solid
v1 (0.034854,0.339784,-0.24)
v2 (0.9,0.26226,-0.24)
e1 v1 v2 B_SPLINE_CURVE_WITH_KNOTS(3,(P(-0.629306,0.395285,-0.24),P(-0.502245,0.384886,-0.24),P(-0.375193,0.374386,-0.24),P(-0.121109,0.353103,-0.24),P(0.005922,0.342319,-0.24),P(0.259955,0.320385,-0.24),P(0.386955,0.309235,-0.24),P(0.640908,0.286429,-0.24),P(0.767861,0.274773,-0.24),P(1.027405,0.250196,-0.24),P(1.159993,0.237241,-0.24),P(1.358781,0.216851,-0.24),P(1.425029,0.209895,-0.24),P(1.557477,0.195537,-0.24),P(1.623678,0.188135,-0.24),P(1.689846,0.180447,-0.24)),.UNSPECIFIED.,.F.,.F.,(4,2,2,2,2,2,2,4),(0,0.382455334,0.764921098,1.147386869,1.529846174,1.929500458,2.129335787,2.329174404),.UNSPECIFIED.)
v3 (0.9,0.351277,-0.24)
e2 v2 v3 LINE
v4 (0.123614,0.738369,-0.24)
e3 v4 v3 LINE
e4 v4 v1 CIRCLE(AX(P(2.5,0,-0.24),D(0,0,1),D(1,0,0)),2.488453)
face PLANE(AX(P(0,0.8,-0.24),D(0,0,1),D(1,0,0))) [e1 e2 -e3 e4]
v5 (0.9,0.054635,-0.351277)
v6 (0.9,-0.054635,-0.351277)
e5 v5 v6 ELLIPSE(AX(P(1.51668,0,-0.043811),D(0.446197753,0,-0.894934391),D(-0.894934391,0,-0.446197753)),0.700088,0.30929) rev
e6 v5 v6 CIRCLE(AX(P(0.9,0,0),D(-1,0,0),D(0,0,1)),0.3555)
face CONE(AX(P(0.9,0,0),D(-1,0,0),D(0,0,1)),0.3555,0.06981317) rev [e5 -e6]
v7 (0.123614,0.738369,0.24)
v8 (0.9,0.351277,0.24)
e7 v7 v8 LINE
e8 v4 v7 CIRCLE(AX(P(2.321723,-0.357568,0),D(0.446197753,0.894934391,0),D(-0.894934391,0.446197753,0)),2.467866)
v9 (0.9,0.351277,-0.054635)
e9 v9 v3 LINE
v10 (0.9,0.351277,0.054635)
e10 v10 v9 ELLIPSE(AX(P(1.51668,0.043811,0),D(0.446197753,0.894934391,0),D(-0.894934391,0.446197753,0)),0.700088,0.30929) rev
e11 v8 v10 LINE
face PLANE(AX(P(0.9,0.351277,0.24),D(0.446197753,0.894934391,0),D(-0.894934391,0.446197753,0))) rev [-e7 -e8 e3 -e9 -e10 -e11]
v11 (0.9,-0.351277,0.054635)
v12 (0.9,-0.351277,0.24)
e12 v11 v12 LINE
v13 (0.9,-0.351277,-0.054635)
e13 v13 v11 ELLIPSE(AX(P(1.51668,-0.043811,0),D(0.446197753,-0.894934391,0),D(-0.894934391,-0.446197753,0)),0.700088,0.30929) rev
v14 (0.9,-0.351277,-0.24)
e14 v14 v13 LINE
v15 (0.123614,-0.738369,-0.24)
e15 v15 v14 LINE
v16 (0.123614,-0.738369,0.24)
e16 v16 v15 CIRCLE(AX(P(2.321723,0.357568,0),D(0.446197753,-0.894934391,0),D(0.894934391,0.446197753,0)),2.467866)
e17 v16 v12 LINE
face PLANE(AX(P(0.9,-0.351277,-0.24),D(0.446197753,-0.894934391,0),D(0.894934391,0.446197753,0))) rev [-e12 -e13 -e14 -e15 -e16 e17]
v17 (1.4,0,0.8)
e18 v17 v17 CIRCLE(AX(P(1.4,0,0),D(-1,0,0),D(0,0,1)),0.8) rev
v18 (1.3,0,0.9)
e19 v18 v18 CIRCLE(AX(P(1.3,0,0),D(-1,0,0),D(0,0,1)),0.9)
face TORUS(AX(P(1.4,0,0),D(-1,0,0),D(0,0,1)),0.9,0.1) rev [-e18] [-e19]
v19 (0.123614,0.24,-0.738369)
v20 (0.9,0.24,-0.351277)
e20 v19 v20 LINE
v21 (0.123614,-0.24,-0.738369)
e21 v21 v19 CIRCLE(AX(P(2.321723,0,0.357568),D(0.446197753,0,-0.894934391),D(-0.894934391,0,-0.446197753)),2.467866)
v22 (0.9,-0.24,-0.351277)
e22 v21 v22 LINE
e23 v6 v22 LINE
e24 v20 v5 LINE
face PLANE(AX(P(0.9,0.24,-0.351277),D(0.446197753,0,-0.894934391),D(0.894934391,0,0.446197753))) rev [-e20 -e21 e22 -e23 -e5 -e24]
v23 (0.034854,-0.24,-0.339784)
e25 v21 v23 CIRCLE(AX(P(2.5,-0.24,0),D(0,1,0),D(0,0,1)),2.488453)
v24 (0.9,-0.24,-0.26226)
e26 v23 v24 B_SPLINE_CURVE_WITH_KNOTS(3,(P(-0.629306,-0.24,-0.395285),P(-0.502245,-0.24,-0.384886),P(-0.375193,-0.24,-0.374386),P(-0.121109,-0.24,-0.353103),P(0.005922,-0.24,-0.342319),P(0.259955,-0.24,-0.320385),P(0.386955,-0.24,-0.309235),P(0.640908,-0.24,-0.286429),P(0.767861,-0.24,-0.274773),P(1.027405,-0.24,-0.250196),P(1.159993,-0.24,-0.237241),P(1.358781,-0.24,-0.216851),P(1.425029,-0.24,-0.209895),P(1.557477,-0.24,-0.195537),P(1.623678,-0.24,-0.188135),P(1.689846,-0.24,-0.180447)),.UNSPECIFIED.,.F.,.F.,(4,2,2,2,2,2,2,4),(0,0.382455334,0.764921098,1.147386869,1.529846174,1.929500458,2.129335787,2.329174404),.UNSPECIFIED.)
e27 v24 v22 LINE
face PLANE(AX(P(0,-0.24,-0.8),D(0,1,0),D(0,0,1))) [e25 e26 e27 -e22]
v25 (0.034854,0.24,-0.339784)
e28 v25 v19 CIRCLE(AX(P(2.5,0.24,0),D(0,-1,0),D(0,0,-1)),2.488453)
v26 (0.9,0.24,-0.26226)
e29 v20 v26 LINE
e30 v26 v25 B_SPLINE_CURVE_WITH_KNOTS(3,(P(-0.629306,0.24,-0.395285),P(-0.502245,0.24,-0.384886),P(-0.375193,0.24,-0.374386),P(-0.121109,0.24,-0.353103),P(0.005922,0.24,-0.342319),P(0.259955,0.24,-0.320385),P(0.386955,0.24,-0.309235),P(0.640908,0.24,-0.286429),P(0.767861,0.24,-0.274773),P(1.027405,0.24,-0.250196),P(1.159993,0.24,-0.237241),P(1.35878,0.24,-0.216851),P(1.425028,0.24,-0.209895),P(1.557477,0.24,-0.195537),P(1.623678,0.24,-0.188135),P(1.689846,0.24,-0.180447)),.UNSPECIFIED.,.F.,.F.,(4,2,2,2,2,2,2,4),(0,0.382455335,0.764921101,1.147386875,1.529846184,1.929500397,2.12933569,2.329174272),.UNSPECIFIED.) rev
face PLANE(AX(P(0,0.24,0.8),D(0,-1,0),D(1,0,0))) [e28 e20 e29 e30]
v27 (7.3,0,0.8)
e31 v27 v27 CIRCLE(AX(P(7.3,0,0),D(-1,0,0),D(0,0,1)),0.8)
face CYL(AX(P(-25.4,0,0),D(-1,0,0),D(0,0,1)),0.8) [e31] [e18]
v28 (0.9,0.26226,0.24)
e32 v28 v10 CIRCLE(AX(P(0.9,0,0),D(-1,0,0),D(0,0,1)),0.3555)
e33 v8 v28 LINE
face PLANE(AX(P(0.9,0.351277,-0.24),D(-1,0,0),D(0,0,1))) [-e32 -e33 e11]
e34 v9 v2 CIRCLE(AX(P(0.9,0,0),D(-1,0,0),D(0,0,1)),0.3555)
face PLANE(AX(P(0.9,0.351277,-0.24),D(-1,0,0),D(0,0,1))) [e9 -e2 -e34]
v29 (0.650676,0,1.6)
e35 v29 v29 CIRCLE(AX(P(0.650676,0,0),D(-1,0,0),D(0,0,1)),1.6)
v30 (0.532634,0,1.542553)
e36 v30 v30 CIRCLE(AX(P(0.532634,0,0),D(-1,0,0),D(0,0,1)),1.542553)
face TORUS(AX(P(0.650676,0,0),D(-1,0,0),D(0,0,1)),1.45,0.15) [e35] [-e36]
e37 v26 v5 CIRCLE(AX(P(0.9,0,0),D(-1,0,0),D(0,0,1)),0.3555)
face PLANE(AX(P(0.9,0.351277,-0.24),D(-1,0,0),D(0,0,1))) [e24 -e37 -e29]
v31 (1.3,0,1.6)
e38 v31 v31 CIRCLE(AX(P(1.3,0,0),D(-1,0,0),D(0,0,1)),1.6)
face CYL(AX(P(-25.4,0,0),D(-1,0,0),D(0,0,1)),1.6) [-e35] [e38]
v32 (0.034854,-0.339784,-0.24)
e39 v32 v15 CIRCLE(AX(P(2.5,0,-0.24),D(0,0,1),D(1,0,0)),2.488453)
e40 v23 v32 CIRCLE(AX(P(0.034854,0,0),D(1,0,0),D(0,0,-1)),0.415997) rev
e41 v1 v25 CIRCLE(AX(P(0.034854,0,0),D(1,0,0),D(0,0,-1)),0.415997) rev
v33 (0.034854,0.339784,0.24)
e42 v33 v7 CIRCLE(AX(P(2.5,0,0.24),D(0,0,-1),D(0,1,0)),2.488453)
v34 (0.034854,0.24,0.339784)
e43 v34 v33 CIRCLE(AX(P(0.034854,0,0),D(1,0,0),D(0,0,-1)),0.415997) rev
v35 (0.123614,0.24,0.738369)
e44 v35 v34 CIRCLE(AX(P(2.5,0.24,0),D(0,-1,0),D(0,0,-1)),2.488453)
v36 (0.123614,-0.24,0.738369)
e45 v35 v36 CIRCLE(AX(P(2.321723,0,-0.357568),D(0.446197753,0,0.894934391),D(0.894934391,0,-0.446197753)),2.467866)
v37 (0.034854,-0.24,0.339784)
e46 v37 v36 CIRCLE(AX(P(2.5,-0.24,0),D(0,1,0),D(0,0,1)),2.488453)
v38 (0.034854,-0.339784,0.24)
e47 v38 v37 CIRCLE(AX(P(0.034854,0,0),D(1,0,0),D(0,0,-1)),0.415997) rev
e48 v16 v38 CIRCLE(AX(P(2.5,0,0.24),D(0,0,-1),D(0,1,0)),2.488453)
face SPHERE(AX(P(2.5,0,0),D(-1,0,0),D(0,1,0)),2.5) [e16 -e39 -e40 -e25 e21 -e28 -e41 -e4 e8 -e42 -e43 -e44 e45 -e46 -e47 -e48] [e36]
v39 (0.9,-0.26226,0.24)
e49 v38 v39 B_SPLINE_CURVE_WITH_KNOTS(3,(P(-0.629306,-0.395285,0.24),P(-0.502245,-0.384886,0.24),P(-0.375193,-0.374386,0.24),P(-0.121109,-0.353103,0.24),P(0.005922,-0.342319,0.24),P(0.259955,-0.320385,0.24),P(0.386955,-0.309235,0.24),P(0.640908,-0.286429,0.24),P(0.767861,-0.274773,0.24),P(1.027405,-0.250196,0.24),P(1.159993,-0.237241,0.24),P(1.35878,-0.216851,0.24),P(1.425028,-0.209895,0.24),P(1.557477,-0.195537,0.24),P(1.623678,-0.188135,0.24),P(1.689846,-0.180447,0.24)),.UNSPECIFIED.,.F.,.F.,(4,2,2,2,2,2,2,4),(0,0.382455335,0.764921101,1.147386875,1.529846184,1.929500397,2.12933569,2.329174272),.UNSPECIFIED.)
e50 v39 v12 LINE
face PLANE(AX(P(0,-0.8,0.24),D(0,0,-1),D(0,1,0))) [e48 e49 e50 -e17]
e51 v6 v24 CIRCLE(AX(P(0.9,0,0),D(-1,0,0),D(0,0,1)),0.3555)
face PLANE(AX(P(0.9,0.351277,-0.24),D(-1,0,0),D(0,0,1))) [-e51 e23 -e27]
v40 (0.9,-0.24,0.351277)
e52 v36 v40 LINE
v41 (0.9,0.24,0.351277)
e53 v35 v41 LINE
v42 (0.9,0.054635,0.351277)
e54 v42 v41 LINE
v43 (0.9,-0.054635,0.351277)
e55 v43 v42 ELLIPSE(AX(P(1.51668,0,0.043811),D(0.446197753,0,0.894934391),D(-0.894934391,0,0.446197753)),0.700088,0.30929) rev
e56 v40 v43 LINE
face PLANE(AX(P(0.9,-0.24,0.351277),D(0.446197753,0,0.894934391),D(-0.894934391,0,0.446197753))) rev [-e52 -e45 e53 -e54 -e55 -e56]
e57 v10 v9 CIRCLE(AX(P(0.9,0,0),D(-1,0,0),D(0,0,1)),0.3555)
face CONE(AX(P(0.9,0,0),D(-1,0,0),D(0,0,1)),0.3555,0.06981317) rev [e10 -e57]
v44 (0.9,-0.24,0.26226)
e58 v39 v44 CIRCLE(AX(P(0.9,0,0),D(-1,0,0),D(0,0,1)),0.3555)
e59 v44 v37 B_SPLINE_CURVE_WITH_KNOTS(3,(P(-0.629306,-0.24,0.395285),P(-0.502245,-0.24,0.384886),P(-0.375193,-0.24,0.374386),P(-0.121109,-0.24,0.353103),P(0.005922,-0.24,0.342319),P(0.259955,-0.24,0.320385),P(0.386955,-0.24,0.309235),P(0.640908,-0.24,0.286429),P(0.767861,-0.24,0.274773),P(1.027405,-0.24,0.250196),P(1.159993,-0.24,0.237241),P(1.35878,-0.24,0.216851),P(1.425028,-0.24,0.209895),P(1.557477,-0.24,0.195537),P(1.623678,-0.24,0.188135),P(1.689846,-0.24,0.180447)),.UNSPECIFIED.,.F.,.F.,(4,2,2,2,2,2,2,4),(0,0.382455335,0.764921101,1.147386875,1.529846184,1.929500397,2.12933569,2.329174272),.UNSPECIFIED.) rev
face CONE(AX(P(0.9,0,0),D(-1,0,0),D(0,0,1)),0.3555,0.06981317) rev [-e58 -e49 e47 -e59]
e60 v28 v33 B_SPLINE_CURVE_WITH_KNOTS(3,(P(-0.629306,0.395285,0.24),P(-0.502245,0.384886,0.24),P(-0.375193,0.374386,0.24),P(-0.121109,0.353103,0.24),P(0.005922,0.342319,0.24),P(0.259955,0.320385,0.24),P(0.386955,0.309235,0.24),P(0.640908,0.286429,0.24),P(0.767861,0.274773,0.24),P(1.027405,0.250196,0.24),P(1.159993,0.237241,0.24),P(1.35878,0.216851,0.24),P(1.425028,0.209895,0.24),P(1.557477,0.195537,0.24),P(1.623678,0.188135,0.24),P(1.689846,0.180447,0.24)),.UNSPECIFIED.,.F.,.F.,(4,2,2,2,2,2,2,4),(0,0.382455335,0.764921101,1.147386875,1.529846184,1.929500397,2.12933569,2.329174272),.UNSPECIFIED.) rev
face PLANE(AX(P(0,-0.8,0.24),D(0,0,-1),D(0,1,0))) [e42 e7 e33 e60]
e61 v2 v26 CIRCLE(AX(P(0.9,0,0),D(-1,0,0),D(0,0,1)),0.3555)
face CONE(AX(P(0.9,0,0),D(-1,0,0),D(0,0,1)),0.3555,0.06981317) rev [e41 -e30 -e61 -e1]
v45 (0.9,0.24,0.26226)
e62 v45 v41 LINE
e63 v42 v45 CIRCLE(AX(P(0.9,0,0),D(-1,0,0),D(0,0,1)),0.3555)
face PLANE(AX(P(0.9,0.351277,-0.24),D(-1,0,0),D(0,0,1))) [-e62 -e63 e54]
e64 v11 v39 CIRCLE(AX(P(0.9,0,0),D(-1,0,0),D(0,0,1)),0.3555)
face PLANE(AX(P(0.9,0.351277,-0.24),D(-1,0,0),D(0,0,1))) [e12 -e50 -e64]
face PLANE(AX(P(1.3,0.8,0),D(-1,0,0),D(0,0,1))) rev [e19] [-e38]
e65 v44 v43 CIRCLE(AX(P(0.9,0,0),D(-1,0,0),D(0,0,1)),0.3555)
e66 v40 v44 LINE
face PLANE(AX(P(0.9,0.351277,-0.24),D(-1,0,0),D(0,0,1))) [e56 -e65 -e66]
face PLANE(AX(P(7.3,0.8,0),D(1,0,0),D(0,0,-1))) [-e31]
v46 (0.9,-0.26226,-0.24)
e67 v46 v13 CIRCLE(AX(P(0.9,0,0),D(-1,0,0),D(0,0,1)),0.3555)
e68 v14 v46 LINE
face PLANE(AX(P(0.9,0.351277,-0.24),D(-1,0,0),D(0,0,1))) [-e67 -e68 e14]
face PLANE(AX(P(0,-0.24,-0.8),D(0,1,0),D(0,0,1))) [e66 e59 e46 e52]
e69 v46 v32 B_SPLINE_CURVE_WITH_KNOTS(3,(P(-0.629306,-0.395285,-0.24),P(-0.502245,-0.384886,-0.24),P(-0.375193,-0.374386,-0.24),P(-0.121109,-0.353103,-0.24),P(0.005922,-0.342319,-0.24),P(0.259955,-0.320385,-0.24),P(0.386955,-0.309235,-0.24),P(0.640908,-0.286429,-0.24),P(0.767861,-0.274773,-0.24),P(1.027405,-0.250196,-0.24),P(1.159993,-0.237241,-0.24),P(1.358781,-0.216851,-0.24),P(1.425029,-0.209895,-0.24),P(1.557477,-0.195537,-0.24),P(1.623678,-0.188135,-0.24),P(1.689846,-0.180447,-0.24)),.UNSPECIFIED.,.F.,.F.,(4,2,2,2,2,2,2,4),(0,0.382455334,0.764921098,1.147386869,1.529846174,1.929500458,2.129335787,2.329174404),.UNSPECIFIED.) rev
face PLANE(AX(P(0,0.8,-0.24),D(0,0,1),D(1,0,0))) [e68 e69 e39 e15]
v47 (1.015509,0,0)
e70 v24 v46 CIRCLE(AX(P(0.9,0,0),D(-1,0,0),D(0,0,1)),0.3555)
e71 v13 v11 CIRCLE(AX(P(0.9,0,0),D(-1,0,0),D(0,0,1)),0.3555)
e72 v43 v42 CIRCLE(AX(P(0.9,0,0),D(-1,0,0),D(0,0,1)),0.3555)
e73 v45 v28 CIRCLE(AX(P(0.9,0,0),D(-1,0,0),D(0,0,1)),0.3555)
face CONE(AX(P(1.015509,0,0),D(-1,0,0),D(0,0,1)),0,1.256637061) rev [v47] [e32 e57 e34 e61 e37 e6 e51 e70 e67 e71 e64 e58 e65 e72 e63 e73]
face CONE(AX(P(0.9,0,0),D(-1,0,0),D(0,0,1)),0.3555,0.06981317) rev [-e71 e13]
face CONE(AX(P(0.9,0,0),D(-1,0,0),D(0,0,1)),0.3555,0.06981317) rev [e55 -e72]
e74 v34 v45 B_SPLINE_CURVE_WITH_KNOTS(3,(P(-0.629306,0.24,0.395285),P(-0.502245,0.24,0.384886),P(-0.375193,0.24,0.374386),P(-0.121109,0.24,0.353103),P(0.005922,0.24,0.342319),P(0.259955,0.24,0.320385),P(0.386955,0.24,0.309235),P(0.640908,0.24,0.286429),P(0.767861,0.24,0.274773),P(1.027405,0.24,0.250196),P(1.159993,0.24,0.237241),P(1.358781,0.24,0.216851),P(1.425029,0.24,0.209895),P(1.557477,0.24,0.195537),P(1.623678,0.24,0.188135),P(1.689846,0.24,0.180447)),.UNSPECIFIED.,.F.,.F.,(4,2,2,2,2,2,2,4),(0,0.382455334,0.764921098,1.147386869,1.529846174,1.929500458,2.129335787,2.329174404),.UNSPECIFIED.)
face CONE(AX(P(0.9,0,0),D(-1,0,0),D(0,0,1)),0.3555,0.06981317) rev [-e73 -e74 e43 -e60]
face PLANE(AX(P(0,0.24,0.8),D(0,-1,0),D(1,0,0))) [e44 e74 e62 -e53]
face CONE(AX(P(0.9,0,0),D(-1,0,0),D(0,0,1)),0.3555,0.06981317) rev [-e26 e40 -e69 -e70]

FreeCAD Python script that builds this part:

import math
import FreeCAD as App
import Part
import Sketcher

V = App.Vector
Q = App.Units.Quantity


def edges_at(feature, points):
    """Names of the edges that pass closest to the given points."""
    edges = feature.Shape.Edges
    near = lambda p: min(range(len(edges)), key=lambda i: edges[i].distToShape(Part.Vertex(*p))[0])
    return sorted({f"Edge{near(p) + 1}" for p in points})

doc = App.newDocument("Part")
body = doc.addObject("PartDesign::Body", "Body")

# Sketch on XY plane
sketch1 = doc.addObject("Sketcher::SketchObject", "Sketch")
body.addObject(sketch1)
sketch1.AttachmentSupport = (doc.XY_Plane, [""])
sketch1.MapMode = "FlatFace"
sketch1.addGeometry([
    Part.LineSegment(V(1.3, 0.8, 0), V(1.3, 1.6, 0)),  # 0
    Part.LineSegment(V(1.3, 1.6, 0), V(0.650676, 1.6, 0)),  # 1
    Part.ArcOfCircle(Part.Circle(V(0.650676, 1.45, 0), V(0, 0, 1), 0.15), math.radians(90), math.radians(141.901063)),  # 2
    Part.ArcOfCircle(Part.Circle(V(2.5, 0, 0), V(0, 0, 1), 2.5), math.radians(141.901063), math.radians(180)),  # 3
    Part.LineSegment(V(0, 0, 0), V(7.3, 0, 0)),  # 4
    Part.LineSegment(V(7.3, 0, 0), V(7.3, 0.8, 0)),  # 5
    Part.LineSegment(V(7.3, 0.8, 0), V(1.3, 0.8, 0)),  # 6
], False)
sketch1.addConstraint([
    Sketcher.Constraint("Coincident", 0, 2, 1, 1),
    Sketcher.Constraint("Tangent", 1, 2, 2, 1),
    Sketcher.Constraint("Tangent", 2, 2, 3, 1),
    Sketcher.Constraint("Coincident", 3, 2, 4, 1),
    Sketcher.Constraint("Coincident", 4, 2, 5, 1),
    Sketcher.Constraint("Coincident", 5, 2, 6, 1),
    Sketcher.Constraint("Coincident", 6, 2, 0, 1),
    Sketcher.Constraint("Vertical", 0),
    Sketcher.Constraint("Horizontal", 1),
    Sketcher.Constraint("Horizontal", 4),
    Sketcher.Constraint("Vertical", 5),
    Sketcher.Constraint("Horizontal", 6),
    Sketcher.Constraint("Coincident", 3, 2, -1, 1),
    Sketcher.Constraint("PointOnObject", 3, 3, -1),
    Sketcher.Constraint("Equal", 0, 5),
    Sketcher.Constraint("Radius", 3, 2.5),
    Sketcher.Constraint("DistanceX", 6, 2, 6, 1, 6.0),
    Sketcher.Constraint("Radius", 2, 0.15),
    Sketcher.Constraint("DistanceX", 4, 1, 4, 2, 7.3),
    Sketcher.Constraint("DistanceY", 0, 1, 0, 2, 0.8),
])
revolution = doc.addObject("PartDesign::Revolution", "Revolution")
body.addObject(revolution)
revolution.Profile = sketch1
revolution.ReferenceAxis = (sketch1, ["H_Axis"])
revolution.Angle = 360
doc.recompute()

fillet = doc.addObject("PartDesign::Fillet", "Fillet")
body.addObject(fillet)
fillet.Base = (revolution, edges_at(revolution, [(1.3, -0.8, 0)]))
fillet.Radius = 0.1

# Sketch on YZ plane
sketch2 = doc.addObject("Sketcher::SketchObject", "Sketch001")
body.addObject(sketch2)
sketch2.AttachmentSupport = (doc.YZ_Plane, [""])
sketch2.MapMode = "FlatFace"
sketch2.addGeometry([
    Part.LineSegment(V(0.8, 0.24, 0), V(-0.8, 0.24, 0)),
    Part.LineSegment(V(-0.8, 0.24, 0), V(-0.8, -0.24, 0)),
    Part.LineSegment(V(-0.8, -0.24, 0), V(0.8, -0.24, 0)),
    Part.LineSegment(V(0.8, -0.24, 0), V(0.8, 0.24, 0)),
], False)
sketch2.addConstraint([
    Sketcher.Constraint("Coincident", 0, 2, 1, 1),
    Sketcher.Constraint("Coincident", 1, 2, 2, 1),
    Sketcher.Constraint("Coincident", 2, 2, 3, 1),
    Sketcher.Constraint("Coincident", 3, 2, 0, 1),
    Sketcher.Constraint("Horizontal", 0),
    Sketcher.Constraint("Vertical", 1),
    Sketcher.Constraint("Horizontal", 2),
    Sketcher.Constraint("Vertical", 3),
    Sketcher.Constraint("Symmetric", 0, 2, 2, 2, -1, 1),
    Sketcher.Constraint("DistanceX", 0, 2, 0, 1, 1.6),
    Sketcher.Constraint("DistanceY", 1, 2, 1, 1, 0.48),
])

# Sketch on YZ plane
sketch3 = doc.addObject("Sketcher::SketchObject", "Sketch002")
body.addObject(sketch3)
sketch3.AttachmentSupport = (doc.YZ_Plane, [""])
sketch3.MapMode = "FlatFace"
sketch3.AttachmentOffset = App.Placement(V(0, 0, 0.9), App.Rotation())
sketch3.addGeometry([
    Part.LineSegment(V(0.351277, 0.24, 0), V(-0.351277, 0.24, 0)),
    Part.LineSegment(V(-0.351277, 0.24, 0), V(-0.351277, -0.24, 0)),
    Part.LineSegment(V(-0.351277, -0.24, 0), V(0.351277, -0.24, 0)),
    Part.LineSegment(V(0.351277, -0.24, 0), V(0.351277, 0.24, 0)),
], False)
sketch3.addConstraint([
    Sketcher.Constraint("Coincident", 0, 2, 1, 1),
    Sketcher.Constraint("Coincident", 1, 2, 2, 1),
    Sketcher.Constraint("Coincident", 2, 2, 3, 1),
    Sketcher.Constraint("Coincident", 3, 2, 0, 1),
    Sketcher.Constraint("Horizontal", 0),
    Sketcher.Constraint("Vertical", 1),
    Sketcher.Constraint("Horizontal", 2),
    Sketcher.Constraint("Vertical", 3),
    Sketcher.Constraint("Symmetric", 0, 2, 2, 2, -1, 1),
    Sketcher.Constraint("DistanceY", 1, 2, 1, 1, 0.48),
    Sketcher.Constraint("DistanceX", 0, 2, 0, 1, 0.702553),
])

subtractiveloft = doc.addObject("PartDesign::SubtractiveLoft", "SubtractiveLoft")
body.addObject(subtractiveloft)
subtractiveloft.Profile = sketch2
subtractiveloft.Sections = [sketch3]
doc.recompute()

polarpattern = doc.addObject("PartDesign::PolarPattern", "PolarPattern")
body.addObject(polarpattern)
polarpattern.Originals = [subtractiveloft]
polarpattern.Axis = (doc.X_Axis, [""])
polarpattern.Angle = 90
polarpattern.Occurrences = 2
body.Tip = polarpattern

# Sketch on XY plane
sketch4 = doc.addObject("Sketcher::SketchObject", "Sketch003")
body.addObject(sketch4)
sketch4.AttachmentSupport = (doc.XY_Plane, [""])
sketch4.MapMode = "FlatFace"
sketch4.addGeometry([
    Part.LineSegment(V(0, 0.418434, 0), V(0, 0, 0)),
    Part.LineSegment(V(0, 0, 0), V(1.015509, 0, 0)),
    Part.LineSegment(V(1.015509, 0, 0), V(0.9, 0.3555, 0)),
    Part.LineSegment(V(0.9, 0.3555, 0), V(0, 0.418434, 0)),
], False)
sketch4.addConstraint([
    Sketcher.Constraint("Coincident", 0, 2, 1, 1),
    Sketcher.Constraint("Coincident", 1, 2, 2, 1),
    Sketcher.Constraint("Coincident", 2, 2, 3, 1),
    Sketcher.Constraint("Coincident", 3, 2, 0, 1),
    Sketcher.Constraint("Vertical", 0),
    Sketcher.Constraint("Horizontal", 1),
    Sketcher.Constraint("Coincident", 0, 2, -1, 1),
    Sketcher.Constraint("Angle", 2, Q("108 deg")),
    Sketcher.Constraint("Angle", 3, Q("176 deg")),
    Sketcher.Constraint("DistanceX", -1, 1, 2, 2, 0.9),
    Sketcher.Constraint("DistanceX", 1, 1, 1, 2, 1.015509),
])
groove = doc.addObject("PartDesign::Groove", "Groove")
body.addObject(groove)
groove.Profile = sketch4
groove.ReferenceAxis = (sketch4, ["H_Axis"])
groove.Angle = 360

doc.recompute()
